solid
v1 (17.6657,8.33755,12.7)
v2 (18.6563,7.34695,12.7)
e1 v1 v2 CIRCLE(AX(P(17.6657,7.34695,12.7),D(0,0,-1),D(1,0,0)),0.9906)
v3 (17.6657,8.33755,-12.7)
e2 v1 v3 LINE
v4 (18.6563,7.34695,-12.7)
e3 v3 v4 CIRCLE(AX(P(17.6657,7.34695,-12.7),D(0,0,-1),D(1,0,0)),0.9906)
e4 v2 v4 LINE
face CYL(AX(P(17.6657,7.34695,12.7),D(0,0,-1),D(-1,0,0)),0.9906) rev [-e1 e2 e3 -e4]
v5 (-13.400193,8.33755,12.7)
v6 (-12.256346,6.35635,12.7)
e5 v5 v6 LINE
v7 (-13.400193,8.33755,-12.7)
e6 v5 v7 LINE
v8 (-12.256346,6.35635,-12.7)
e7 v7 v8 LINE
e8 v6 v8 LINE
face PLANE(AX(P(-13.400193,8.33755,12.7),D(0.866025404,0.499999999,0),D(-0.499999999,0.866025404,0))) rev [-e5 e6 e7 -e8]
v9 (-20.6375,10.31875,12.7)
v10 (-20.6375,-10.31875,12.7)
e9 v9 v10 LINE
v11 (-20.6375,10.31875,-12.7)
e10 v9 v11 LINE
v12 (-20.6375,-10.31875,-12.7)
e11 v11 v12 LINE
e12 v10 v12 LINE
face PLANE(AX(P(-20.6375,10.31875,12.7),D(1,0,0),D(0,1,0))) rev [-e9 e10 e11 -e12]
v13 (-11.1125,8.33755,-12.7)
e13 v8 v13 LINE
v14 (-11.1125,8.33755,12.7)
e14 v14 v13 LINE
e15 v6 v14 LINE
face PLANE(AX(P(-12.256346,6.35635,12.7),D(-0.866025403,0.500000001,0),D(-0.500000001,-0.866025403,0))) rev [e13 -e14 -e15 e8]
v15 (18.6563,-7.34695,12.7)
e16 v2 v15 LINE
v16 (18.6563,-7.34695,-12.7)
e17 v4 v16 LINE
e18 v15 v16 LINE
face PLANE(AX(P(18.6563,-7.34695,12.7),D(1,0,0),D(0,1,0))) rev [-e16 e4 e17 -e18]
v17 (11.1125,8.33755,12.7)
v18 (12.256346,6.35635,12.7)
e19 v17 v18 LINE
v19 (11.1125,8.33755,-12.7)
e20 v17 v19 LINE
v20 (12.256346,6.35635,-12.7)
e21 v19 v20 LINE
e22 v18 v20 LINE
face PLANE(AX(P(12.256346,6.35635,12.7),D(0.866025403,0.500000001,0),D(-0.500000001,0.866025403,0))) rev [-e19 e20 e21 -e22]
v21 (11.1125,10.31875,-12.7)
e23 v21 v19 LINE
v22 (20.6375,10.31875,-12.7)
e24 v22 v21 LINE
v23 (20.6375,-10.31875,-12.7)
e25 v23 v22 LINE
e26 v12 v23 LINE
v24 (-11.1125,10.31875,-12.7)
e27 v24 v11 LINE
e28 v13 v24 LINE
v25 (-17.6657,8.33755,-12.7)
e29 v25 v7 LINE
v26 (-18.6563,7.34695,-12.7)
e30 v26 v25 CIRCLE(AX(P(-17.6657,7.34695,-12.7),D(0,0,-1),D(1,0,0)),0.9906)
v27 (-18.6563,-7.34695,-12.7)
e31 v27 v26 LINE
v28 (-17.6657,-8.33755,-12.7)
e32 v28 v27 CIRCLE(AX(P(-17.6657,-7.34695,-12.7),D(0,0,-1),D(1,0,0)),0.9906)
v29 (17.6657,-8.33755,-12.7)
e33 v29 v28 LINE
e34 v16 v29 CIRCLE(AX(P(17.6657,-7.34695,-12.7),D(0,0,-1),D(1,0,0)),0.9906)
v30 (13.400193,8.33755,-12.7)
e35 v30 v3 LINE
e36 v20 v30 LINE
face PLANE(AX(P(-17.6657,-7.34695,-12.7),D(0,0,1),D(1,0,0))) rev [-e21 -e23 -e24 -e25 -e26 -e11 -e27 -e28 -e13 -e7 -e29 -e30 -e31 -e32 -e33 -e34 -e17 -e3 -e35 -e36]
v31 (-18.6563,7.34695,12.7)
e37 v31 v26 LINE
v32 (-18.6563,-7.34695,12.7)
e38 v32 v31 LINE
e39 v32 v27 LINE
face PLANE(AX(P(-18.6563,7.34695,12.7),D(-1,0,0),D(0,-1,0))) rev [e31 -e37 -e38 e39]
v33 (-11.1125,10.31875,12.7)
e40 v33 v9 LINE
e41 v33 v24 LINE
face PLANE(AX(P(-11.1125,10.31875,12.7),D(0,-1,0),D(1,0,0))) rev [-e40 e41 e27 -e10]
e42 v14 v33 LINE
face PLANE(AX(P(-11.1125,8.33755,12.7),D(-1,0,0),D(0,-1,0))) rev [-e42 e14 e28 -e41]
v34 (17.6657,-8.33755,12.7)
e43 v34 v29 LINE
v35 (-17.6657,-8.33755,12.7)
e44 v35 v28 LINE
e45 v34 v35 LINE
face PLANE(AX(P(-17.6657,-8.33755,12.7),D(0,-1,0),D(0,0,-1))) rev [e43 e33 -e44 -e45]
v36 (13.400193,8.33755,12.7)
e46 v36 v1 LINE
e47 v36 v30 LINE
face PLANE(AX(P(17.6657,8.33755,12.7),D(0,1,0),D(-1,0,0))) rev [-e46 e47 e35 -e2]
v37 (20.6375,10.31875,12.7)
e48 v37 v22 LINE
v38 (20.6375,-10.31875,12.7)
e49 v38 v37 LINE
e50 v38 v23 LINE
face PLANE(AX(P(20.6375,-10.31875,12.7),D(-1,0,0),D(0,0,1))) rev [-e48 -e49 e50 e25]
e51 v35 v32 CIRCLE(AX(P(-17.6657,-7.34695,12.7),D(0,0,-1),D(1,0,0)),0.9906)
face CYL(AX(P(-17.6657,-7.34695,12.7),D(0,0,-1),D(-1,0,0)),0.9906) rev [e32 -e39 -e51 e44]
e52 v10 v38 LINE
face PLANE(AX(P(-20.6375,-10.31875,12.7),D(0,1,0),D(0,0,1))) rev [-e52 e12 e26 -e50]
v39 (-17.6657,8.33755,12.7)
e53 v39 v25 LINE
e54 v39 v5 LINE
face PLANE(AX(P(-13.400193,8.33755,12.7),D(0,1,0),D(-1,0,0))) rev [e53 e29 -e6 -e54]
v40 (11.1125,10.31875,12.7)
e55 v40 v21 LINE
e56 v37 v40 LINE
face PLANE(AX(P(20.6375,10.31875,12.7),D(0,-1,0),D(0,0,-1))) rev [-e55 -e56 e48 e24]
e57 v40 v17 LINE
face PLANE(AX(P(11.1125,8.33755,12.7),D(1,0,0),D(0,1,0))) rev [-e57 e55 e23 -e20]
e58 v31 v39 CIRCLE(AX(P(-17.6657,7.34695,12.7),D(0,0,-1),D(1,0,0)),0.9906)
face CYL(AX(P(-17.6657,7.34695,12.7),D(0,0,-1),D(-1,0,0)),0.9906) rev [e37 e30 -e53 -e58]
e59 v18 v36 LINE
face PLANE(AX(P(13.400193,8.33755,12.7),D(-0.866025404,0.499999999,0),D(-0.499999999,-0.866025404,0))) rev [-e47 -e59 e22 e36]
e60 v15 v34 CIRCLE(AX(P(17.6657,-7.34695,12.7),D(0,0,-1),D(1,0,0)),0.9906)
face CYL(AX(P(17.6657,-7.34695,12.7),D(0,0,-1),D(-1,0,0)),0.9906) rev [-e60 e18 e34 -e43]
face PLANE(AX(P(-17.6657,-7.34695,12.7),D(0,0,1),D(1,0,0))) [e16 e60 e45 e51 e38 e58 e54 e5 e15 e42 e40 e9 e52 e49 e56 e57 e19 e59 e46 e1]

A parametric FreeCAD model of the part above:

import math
import FreeCAD as App
import Part
import Sketcher

V = App.Vector
Q = App.Units.Quantity

doc = App.newDocument("Part")
body = doc.addObject("PartDesign::Body", "Body")

# Sketch on XY plane
sketch1 = body.newObject("Sketcher::SketchObject", "Sketch")
sketch1.AttachmentSupport = (doc.getObject("XY_Plane"), [""])
sketch1.MapMode = "FlatFace"
sketch1.addGeometry([
    Part.LineSegment(V(-11.1125, 10.31875, 0), V(-20.6375, 10.31875, 0)),  # 0
    Part.LineSegment(V(-20.6375, 10.31875, 0), V(-20.6375, -10.31875, 0)),  # 1
    Part.LineSegment(V(-20.6375, -10.31875, 0), V(20.6375, -10.31875, 0)),  # 2
    Part.LineSegment(V(20.6375, -10.31875, 0), V(20.6375, 10.31875, 0)),  # 3
    Part.LineSegment(V(20.6375, 10.31875, 0), V(11.1125, 10.31875, 0)),  # 4
    Part.LineSegment(V(11.1125, 10.31875, 0), V(11.1125, 8.33755, 0)),  # 5
    Part.LineSegment(V(11.1125, 8.33755, 0), V(12.256346, 6.35635, 0)),  # 6
    Part.LineSegment(V(12.256346, 6.35635, 0), V(13.400193, 8.33755, 0)),  # 7
    Part.LineSegment(V(13.400193, 8.33755, 0), V(17.6657, 8.33755, 0)),  # 8
    Part.ArcOfCircle(Part.Circle(V(17.6657, 7.34695, 0), V(0, 0, 1), 0.9906), math.radians(0), math.radians(90)),  # 9
    Part.LineSegment(V(18.6563, 7.34695, 0), V(18.6563, -7.34695, 0)),  # 10
    Part.ArcOfCircle(Part.Circle(V(17.6657, -7.34695, 0), V(0, 0, 1), 0.9906), math.radians(-90), math.radians(0)),  # 11
    Part.LineSegment(V(17.6657, -8.33755, 0), V(-17.6657, -8.33755, 0)),  # 12
    Part.ArcOfCircle(Part.Circle(V(-17.6657, -7.34695, 0), V(0, 0, 1), 0.9906), math.radians(-180), math.radians(-90)),  # 13
    Part.LineSegment(V(-18.6563, -7.34695, 0), V(-18.6563, 7.34695, 0)),  # 14
    Part.ArcOfCircle(Part.Circle(V(-17.6657, 7.34695, 0), V(0, 0, 1), 0.9906), math.radians(90), math.radians(180)),  # 15
    Part.LineSegment(V(-17.6657, 8.33755, 0), V(-13.400193, 8.33755, 0)),  # 16
    Part.LineSegment(V(-13.400193, 8.33755, 0), V(-12.256346, 6.35635, 0)),  # 17
    Part.LineSegment(V(-12.256346, 6.35635, 0), V(-11.1125, 8.33755, 0)),  # 18
    Part.LineSegment(V(-11.1125, 8.33755, 0), V(-11.1125, 10.31875, 0)),  # 19
], False)
sketch1.addConstraint([
    Sketcher.Constraint("Coincident", 0, 2, 1, 1),
    Sketcher.Constraint("Coincident", 1, 2, 2, 1),
    Sketcher.Constraint("Coincident", 2, 2, 3, 1),
    Sketcher.Constraint("Coincident", 3, 2, 4, 1),
    Sketcher.Constraint("Coincident", 4, 2, 5, 1),
    Sketcher.Constraint("Coincident", 5, 2, 6, 1),
    Sketcher.Constraint("Coincident", 6, 2, 7, 1),
    Sketcher.Constraint("Coincident", 7, 2, 8, 1),
    Sketcher.Constraint("Tangent", 8, 2, 9, 2),
    Sketcher.Constraint("Tangent", 9, 1, 10, 1),
    Sketcher.Constraint("Tangent", 10, 2, 11, 2),
    Sketcher.Constraint("Tangent", 11, 1, 12, 1),
    Sketcher.Constraint("Tangent", 12, 2, 13, 2),
    Sketcher.Constraint("Tangent", 13, 1, 14, 1),
    Sketcher.Constraint("Tangent", 14, 2, 15, 2),
    Sketcher.Constraint("Tangent", 15, 1, 16, 1),
    Sketcher.Constraint("Coincident", 16, 2, 17, 1),
    Sketcher.Constraint("Coincident", 17, 2, 18, 1),
    Sketcher.Constraint("Coincident", 18, 2, 19, 1),
    Sketcher.Constraint("Coincident", 19, 2, 0, 1),
    Sketcher.Constraint("Horizontal", 0),
    Sketcher.Constraint("Vertical", 1),
    Sketcher.Constraint("Horizontal", 2),
    Sketcher.Constraint("Vertical", 3),
    Sketcher.Constraint("Horizontal", 4),
    Sketcher.Constraint("Vertical", 5),
    Sketcher.Constraint("Horizontal", 8),
    Sketcher.Constraint("Vertical", 10),
    Sketcher.Constraint("Horizontal", 12),
    Sketcher.Constraint("Vertical", 14),
    Sketcher.Constraint("Horizontal", 16),
    Sketcher.Constraint("Vertical", 19),
    Sketcher.Constraint("Equal", 9, 11),
    Sketcher.Constraint("Equal", 11, 13),
    Sketcher.Constraint("Equal", 13, 15),
    Sketcher.Constraint("Symmetric", 9, 3, 13, 3, -1, 1),
    Sketcher.Constraint("Symmetric", 0, 2, 2, 2, -1, 1),
    Sketcher.Constraint("Symmetric", 7, 2, 16, 2, -2),
    Sketcher.Constraint("Symmetric", 6, 2, 17, 2, -2),
    Sketcher.Constraint("Symmetric", 5, 2, 18, 2, -2),
    Sketcher.Constraint("Parallel", 6, 17),
    Sketcher.Constraint("Horizontal", 0, 2, 3, 2),
    Sketcher.Constraint("Horizontal", 5, 2, 7, 2),
    Sketcher.Constraint("Angle", 6, Q("-60 deg")),
    Sketcher.Constraint("Radius", 9, Q("0.039 in")),
    Sketcher.Constraint("DistanceX", 0, 2, 0, 1, Q("0.375 in")),
    Sketcher.Constraint("DistanceX", 2, 1, 2, 2, Q("1.625 in")),
    Sketcher.Constraint("DistanceX", 12, 2, 12, 1, Q("1.391 in")),
    Sketcher.Constraint("DistanceY", 1, 2, 1, 1, Q("0.8125 in")),
    Sketcher.Constraint("DistanceY", 5, 2, 5, 1, Q("0.078 in")),
    Sketcher.Constraint("DistanceY", 6, 2, 5, 2, Q("0.078 in")),
])
pad1 = body.newObject("PartDesign::Pad", "Pad")
pad1.Profile = sketch1
pad1.Length = Q("1 in")
pad1.Midplane = True

doc.recompute()
